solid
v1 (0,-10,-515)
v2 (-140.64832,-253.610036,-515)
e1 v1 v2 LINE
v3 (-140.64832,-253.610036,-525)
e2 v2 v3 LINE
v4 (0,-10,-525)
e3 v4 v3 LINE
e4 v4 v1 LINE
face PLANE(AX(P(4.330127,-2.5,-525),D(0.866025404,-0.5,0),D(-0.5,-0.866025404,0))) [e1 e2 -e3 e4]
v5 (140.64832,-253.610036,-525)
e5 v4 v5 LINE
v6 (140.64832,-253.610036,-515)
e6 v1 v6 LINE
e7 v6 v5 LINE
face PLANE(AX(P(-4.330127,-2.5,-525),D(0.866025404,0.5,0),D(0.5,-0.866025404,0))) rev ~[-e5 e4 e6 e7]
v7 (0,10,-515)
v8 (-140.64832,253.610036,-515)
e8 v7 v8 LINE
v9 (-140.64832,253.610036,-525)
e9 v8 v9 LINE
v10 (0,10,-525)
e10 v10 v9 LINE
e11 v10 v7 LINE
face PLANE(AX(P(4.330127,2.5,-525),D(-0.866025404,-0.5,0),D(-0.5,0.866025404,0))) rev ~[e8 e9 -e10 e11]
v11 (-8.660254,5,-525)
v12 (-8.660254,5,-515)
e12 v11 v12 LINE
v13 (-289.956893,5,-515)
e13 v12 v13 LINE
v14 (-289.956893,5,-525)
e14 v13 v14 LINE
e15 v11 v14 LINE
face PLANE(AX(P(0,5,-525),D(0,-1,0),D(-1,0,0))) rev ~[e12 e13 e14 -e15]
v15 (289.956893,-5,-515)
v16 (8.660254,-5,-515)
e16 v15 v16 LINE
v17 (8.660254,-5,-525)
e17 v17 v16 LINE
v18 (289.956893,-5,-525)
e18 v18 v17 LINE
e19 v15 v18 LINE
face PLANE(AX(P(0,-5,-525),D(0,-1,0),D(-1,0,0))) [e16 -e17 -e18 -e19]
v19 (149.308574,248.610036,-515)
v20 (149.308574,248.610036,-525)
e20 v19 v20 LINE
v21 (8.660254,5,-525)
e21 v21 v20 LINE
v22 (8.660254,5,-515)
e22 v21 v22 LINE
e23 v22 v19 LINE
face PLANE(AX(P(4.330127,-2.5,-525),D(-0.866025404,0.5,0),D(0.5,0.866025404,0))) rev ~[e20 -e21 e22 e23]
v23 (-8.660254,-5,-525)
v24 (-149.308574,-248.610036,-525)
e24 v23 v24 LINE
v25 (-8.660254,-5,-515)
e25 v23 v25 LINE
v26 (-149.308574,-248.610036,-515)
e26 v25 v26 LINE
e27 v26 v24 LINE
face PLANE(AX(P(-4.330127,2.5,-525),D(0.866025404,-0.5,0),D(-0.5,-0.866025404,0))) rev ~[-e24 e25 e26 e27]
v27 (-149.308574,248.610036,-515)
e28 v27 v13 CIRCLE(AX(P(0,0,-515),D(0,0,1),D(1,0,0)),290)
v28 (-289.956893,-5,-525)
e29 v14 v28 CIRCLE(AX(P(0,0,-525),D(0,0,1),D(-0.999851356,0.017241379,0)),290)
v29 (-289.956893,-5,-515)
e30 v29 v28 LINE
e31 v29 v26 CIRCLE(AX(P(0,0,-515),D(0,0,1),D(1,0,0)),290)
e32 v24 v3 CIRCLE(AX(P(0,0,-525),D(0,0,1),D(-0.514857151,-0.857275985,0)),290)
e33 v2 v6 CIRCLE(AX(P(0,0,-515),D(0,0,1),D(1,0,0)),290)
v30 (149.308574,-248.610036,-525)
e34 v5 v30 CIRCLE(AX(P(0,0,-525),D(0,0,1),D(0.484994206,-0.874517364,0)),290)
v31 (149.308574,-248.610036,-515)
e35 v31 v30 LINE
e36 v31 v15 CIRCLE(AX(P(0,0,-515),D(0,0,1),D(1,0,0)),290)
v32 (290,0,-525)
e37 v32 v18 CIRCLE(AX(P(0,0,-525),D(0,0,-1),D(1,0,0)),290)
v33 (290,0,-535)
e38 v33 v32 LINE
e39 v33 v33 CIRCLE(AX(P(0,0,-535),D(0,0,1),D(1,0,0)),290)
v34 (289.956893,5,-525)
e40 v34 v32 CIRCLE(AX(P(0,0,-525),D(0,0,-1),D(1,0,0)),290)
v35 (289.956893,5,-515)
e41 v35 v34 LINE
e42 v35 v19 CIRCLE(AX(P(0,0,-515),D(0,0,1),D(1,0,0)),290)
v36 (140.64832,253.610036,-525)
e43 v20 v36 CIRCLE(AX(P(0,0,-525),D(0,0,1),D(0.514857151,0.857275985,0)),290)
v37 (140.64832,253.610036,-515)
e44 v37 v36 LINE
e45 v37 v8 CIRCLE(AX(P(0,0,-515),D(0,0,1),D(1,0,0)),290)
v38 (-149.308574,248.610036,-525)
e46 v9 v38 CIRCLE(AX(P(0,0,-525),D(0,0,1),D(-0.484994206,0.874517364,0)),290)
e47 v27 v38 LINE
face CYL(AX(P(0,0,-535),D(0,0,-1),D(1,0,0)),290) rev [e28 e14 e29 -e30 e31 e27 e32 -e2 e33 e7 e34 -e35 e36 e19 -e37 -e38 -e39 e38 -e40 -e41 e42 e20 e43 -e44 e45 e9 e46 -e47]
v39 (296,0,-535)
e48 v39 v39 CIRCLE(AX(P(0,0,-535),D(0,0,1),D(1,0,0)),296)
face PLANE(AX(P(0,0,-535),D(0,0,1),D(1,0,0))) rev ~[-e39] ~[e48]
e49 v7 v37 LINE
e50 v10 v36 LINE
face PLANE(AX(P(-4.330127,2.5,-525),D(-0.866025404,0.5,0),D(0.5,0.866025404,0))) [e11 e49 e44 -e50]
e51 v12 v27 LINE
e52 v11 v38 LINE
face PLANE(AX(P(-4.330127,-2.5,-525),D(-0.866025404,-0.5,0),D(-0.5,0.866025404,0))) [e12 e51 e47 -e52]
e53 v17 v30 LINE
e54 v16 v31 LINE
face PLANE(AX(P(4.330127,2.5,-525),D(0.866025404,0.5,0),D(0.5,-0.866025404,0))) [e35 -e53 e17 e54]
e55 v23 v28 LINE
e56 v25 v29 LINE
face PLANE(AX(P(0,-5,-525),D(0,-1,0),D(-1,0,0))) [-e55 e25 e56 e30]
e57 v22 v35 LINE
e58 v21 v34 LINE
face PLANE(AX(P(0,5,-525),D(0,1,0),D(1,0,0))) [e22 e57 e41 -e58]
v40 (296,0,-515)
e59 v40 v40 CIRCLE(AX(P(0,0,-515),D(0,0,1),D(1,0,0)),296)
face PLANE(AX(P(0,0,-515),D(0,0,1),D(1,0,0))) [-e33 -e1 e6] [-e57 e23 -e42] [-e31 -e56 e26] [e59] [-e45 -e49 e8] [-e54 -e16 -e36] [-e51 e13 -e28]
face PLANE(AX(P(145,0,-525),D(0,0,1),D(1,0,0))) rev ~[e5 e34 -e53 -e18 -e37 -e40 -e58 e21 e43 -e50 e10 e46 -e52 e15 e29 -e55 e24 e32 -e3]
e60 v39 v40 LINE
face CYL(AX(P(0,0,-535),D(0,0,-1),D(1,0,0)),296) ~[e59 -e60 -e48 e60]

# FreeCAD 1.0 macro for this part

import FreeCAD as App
import Part
import Sketcher

doc = App.newDocument("Part")
params = doc.addObject("Spreadsheet::Sheet", "Params")
for row, (alias, value) in enumerate([
    ("sketch1_diameter", "580 mm"),
    ("pad1_length", "20 mm"),
    ("sketch2_diameter", "592 mm"),
    ("pad2_length", "20 mm"),
    ("sketch3_width", "290 mm"),
    ("sketch3_height", "10 mm"),
    ("pad3_length", "10 mm"),
], start=1):
    params.set(f"A{row}", alias)
    params.set(f"B{row}", "=" + value)
    params.setAlias(f"B{row}", alias)

body = doc.addObject("PartDesign::Body", "Body")

# Sketch on XY plane
sketch1 = body.newObject("Sketcher::SketchObject", "Sketch")
sketch1.AttachmentSupport = (doc.getObject("XY_Plane"), [""])
sketch1.MapMode = "FlatFace"
sketch1.AttachmentOffset = App.Placement(App.Vector(0, 0, -535), App.Rotation())
sketch1.addGeometry(Part.Circle(App.Vector(0, 0, 0), App.Vector(0, 0, 1), 290), False)
sketch1.addConstraint([
    Sketcher.Constraint("Coincident", 0, 3, -1, 1),
    Sketcher.Constraint("Diameter", 0, 580.0),
])
sketch1.setExpression("Constraints[1]", "Params.sketch1_diameter")
pad1 = body.newObject("PartDesign::Pad", "Pad")
pad1.Profile = sketch1
pad1.setExpression("Length", "Params.pad1_length")
body2 = doc.addObject("PartDesign::Body", "Body001")

# Sketch on XY plane
sketch2 = body2.newObject("Sketcher::SketchObject", "Sketch001")
sketch2.AttachmentSupport = (doc.getObject("XY_Plane001"), [""])
sketch2.MapMode = "FlatFace"
sketch2.AttachmentOffset = App.Placement(App.Vector(0, 0, -535), App.Rotation())
sketch2.addGeometry(Part.Circle(App.Vector(0, 0, 0), App.Vector(0, 0, 1), 296), False)
sketch2.addConstraint([
    Sketcher.Constraint("Coincident", 0, 3, -1, 1),
    Sketcher.Constraint("Diameter", 0, 592.0),
])
sketch2.setExpression("Constraints[1]", "Params.sketch2_diameter")
pad2 = body2.newObject("PartDesign::Pad", "Pad001")
pad2.Profile = sketch2
pad2.setExpression("Length", "Params.pad2_length")
doc.recompute()

boolean = body2.newObject("PartDesign::Boolean", "Boolean")
boolean.Type = "Cut"
boolean.addObjects([body])
body3 = doc.addObject("PartDesign::Body", "Body002")

# Sketch on XY plane
sketch3 = body3.newObject("Sketcher::SketchObject", "Sketch002")
sketch3.AttachmentSupport = (doc.getObject("XY_Plane002"), [""])
sketch3.MapMode = "FlatFace"
sketch3.AttachmentOffset = App.Placement(App.Vector(0, 0, -525), App.Rotation())
sketch3.addGeometry([
    Part.LineSegment(App.Vector(0, 5, 0), App.Vector(0, -5, 0)),
    Part.LineSegment(App.Vector(0, -5, 0), App.Vector(290, -5, 0)),
    Part.LineSegment(App.Vector(290, -5, 0), App.Vector(290, 5, 0)),
    Part.LineSegment(App.Vector(290, 5, 0), App.Vector(0, 5, 0)),
], False)
sketch3.addConstraint([
    Sketcher.Constraint("Coincident", 0, 2, 1, 1),
    Sketcher.Constraint("Coincident", 1, 2, 2, 1),
    Sketcher.Constraint("Coincident", 2, 2, 3, 1),
    Sketcher.Constraint("Coincident", 3, 2, 0, 1),
    Sketcher.Constraint("Vertical", 0),
    Sketcher.Constraint("Horizontal", 1),
    Sketcher.Constraint("Vertical", 2),
    Sketcher.Constraint("Horizontal", 3),
    Sketcher.Constraint("Symmetric", 0, 2, 3, 2, -1, 1),
    Sketcher.Constraint("DistanceX", 1, 1, 1, 2, 290.0),
    Sketcher.Constraint("DistanceY", 0, 2, 0, 1, 10.0),
])
sketch3.setExpression("Constraints[9]", "Params.sketch3_width")
sketch3.setExpression("Constraints[10]", "Params.sketch3_height")
pad3 = body3.newObject("PartDesign::Pad", "Pad002")
pad3.Profile = sketch3
pad3.setExpression("Length", "Params.pad3_length")
body4 = doc.addObject("PartDesign::Body", "Body003")
doc.recompute()

body4.BaseFeature = body3
doc.recompute()

body5 = doc.addObject("PartDesign::Body", "Body004")
body5.BaseFeature = body3
body5.Placement = App.Placement(App.Vector(0, 0, 0), App.Rotation(App.Vector(0, 0, 1), 60))
boolean2 = body4.newObject("PartDesign::Boolean", "Boolean001")
boolean2.Type = "Fuse"
boolean2.addObjects([body5])
doc.recompute()

body6 = doc.addObject("PartDesign::Body", "Body005")
body6.BaseFeature = body3
body6.Placement = App.Placement(App.Vector(0, 0, 0), App.Rotation(App.Vector(0, 0, 1), 120))
boolean3 = body4.newObject("PartDesign::Boolean", "Boolean002")
boolean3.Type = "Fuse"
boolean3.addObjects([body6])
doc.recompute()

body7 = doc.addObject("PartDesign::Body", "Body006")
body7.BaseFeature = body3
body7.Placement = App.Placement(App.Vector(0, 0, 0), App.Rotation(App.Vector(0, 0, 1), 180))
boolean4 = body4.newObject("PartDesign::Boolean", "Boolean003")
boolean4.Type = "Fuse"
boolean4.addObjects([body7])
doc.recompute()

body8 = doc.addObject("PartDesign::Body", "Body007")
body8.BaseFeature = body3
body8.Placement = App.Placement(App.Vector(0, 0, 0), App.Rotation(App.Vector(0, 0, 1), 240))
boolean5 = body4.newObject("PartDesign::Boolean", "Boolean004")
boolean5.Type = "Fuse"
boolean5.addObjects([body8])
doc.recompute()

body3.Placement = App.Placement(App.Vector(0, 0, 0), App.Rotation(App.Vector(0, 0, 1), 300))
boolean6 = body4.newObject("PartDesign::Boolean", "Boolean005")
boolean6.Type = "Fuse"
boolean6.addObjects([body3])
doc.recompute()

boolean7 = body4.newObject("PartDesign::Boolean", "Boolean006")
boolean7.Type = "Fuse"
boolean7.addObjects([body2])

doc.recompute()
